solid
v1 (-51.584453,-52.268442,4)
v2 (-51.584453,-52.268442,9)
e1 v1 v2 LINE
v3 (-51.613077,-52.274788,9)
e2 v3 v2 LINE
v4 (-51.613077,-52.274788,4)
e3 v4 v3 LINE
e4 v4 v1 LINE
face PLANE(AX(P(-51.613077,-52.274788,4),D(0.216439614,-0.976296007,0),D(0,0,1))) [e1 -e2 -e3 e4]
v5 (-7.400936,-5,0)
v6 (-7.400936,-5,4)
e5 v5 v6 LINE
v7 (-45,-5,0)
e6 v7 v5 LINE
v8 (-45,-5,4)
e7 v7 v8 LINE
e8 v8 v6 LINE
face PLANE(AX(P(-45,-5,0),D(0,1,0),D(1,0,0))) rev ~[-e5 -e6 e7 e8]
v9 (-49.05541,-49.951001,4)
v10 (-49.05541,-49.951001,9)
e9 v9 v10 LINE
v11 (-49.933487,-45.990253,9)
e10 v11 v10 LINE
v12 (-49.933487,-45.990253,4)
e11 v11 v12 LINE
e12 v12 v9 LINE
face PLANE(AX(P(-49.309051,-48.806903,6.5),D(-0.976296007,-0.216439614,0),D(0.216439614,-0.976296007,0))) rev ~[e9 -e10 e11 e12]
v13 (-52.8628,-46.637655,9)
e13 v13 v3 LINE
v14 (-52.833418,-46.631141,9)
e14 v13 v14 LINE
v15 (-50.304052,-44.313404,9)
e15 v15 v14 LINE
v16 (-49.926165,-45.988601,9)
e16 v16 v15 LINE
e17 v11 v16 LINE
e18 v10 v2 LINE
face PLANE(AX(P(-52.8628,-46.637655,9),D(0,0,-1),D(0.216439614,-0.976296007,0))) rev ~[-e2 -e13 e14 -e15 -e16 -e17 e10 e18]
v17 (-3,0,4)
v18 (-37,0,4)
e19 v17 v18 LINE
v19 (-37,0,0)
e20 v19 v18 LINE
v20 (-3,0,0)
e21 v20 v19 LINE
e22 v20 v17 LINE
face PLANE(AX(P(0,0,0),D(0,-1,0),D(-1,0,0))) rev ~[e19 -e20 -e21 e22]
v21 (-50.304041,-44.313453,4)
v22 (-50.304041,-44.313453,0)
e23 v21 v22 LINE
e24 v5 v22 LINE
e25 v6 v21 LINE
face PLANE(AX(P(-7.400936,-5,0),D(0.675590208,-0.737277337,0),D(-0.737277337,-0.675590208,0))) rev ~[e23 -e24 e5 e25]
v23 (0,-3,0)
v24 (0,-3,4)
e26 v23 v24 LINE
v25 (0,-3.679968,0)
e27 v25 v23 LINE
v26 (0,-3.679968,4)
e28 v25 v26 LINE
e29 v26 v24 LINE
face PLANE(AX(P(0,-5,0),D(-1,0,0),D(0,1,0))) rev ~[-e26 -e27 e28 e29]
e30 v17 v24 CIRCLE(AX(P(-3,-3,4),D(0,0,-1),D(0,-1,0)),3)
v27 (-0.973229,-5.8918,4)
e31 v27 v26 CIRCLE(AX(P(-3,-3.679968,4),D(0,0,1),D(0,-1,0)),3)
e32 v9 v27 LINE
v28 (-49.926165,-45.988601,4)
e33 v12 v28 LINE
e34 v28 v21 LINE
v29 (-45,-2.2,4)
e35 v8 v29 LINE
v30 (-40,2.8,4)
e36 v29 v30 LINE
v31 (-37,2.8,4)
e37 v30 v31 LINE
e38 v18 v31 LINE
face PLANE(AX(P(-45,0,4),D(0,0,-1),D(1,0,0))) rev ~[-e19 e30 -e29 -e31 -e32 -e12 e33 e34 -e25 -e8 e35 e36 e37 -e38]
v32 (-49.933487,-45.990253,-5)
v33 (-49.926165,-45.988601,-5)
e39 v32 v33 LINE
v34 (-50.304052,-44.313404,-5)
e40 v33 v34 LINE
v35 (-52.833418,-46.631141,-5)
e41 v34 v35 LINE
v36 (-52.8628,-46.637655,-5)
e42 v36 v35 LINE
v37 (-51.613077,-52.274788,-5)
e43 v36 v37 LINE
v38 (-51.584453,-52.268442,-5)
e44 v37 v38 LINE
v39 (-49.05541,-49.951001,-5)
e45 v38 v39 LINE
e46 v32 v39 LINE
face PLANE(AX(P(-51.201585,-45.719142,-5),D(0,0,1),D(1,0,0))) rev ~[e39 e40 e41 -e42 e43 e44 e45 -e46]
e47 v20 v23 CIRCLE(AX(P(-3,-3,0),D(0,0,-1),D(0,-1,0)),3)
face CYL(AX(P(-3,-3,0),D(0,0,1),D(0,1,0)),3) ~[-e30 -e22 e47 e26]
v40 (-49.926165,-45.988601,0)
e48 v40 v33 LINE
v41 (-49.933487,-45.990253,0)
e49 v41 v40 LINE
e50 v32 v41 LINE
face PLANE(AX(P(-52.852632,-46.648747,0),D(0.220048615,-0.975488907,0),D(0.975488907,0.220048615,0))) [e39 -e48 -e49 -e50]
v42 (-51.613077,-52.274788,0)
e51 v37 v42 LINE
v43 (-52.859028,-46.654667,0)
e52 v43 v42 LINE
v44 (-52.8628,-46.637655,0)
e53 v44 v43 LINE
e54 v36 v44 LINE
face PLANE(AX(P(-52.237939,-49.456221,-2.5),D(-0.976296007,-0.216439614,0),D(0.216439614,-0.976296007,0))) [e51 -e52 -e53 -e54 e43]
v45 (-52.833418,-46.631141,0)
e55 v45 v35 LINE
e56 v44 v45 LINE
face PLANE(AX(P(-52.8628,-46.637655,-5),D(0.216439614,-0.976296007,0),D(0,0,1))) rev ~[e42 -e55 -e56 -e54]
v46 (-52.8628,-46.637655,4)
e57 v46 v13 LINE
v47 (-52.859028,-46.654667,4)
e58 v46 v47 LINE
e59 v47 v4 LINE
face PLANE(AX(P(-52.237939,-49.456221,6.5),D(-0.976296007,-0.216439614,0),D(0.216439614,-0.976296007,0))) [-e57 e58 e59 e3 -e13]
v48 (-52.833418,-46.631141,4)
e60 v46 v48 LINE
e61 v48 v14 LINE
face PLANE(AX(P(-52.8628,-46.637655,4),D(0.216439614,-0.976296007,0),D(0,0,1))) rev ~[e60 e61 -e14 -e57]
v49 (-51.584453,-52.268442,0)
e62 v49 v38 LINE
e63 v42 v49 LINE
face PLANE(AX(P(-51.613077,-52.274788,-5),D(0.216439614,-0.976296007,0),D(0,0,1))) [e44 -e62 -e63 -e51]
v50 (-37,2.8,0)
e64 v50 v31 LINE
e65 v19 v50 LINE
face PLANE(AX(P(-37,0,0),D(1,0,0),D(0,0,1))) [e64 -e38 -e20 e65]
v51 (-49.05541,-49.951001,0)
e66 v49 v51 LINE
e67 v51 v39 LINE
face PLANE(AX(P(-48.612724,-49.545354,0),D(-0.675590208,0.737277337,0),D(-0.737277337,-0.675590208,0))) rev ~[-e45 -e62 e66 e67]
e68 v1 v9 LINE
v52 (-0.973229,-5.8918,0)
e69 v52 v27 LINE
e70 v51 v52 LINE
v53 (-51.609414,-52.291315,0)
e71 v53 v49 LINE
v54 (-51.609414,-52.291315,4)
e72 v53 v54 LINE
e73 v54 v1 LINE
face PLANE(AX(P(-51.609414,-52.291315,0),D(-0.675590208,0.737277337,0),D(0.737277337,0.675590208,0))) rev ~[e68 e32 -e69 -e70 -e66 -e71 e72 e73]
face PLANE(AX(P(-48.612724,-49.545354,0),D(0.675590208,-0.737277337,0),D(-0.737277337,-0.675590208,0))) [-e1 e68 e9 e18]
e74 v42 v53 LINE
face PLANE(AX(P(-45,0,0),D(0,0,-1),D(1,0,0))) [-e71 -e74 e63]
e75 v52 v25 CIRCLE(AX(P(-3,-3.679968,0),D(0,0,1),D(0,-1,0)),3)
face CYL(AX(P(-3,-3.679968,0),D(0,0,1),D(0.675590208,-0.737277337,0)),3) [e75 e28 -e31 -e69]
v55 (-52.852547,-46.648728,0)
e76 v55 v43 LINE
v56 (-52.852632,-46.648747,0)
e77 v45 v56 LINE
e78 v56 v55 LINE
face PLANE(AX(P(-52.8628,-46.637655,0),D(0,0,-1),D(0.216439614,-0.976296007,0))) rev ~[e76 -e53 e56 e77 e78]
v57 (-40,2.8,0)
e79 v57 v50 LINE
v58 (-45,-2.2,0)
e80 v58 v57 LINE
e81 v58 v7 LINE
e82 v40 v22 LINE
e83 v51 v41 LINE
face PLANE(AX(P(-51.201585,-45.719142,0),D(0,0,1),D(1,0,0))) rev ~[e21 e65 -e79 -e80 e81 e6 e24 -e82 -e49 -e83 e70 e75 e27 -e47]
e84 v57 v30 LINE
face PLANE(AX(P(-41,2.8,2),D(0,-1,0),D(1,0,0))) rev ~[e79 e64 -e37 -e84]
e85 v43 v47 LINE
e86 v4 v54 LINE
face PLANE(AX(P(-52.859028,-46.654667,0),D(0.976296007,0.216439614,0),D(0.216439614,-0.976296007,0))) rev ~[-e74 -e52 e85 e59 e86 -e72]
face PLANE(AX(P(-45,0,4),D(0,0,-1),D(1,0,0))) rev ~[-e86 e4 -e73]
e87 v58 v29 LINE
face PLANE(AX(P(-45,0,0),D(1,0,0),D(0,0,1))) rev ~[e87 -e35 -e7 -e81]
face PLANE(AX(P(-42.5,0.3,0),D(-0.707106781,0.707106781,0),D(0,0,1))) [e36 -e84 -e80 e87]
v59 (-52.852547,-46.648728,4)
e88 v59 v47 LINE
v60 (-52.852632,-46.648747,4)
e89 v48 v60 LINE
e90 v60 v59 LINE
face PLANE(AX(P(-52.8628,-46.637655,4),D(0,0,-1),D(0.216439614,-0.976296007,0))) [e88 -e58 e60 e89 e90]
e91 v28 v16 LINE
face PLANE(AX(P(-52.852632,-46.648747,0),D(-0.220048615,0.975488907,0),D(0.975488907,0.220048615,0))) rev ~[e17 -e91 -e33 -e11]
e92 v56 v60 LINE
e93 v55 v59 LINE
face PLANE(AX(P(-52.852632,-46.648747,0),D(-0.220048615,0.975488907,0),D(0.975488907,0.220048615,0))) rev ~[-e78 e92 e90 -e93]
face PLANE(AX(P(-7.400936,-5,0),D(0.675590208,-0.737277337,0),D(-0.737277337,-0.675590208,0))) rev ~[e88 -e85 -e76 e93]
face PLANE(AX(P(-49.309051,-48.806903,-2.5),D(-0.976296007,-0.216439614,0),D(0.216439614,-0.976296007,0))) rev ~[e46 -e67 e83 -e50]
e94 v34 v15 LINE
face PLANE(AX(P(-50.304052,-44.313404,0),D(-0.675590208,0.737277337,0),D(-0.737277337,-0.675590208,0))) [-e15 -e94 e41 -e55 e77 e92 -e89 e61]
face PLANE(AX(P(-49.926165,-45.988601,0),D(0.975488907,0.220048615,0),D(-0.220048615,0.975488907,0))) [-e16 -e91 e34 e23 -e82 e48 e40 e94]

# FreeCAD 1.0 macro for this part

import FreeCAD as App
import Part
import Sketcher
from FreeCAD import Vector
Q = App.Units.Quantity


def edges_at(feature, points):
    """Names of the edges that pass closest to the given points."""
    edges = feature.Shape.Edges
    near = lambda p: min(range(len(edges)), key=lambda i: edges[i].distToShape(Part.Vertex(*p))[0])
    return sorted({f"Edge{near(p) + 1}" for p in points})


def add_polygon(sketch, points):
    """Adds a closed chain of lines whose ends are joined by coincident constraints."""
    first, n = sketch.GeometryCount, len(points)
    for a, b in zip(points, points[1:] + points[:1]):
        sketch.addGeometry(Part.LineSegment(App.Vector(*a, 0), App.Vector(*b, 0)), False)
    for i in range(n):
        sketch.addConstraint(Sketcher.Constraint("Coincident", first + i, 2, first + (i + 1) % n, 1))

doc = App.newDocument("Part")
body = doc.addObject("PartDesign::Body", "Body")

sketch1 = doc.addObject("Sketcher::SketchObject", "Sketch")
body.addObject(sketch1)
sketch1.AttachmentSupport = (doc.XY_Plane, [""])
sketch1.MapMode = "FlatFace"
add_polygon(sketch1, [(0, 0), (-45, 0), (-45, -5), (-7.400936, -5), (-52.859028, -46.654667), (-51.609414, -52.291315), (0, -5)])
sketch1.addConstraint([
    Sketcher.Constraint("Horizontal", 0),
    Sketcher.Constraint("Vertical", 1),
    Sketcher.Constraint("Horizontal", 2),
    Sketcher.Constraint("Vertical", 6),
    Sketcher.Constraint("Coincident", 6, 2, -1, 1),
    Sketcher.Constraint("Parallel", 3, 5),
    Sketcher.Constraint("Horizontal", 2, 2, 5, 2),
    Sketcher.Constraint("DistanceX", 0, 2, 0, 1, Q("45 mm")),
    Sketcher.Constraint("DistanceY", 1, 2, 1, 1, Q("5 mm")),
    Sketcher.Constraint("Distance", 5, Q("70 mm")),
    Sketcher.Constraint("Angle", 3, Q("-137.5 deg")),
    Sketcher.Constraint("Angle", 4, Q("-77.5 deg")),
    Sketcher.Constraint("DistanceX", 2, 1, 2, 2, Q("37.599064 mm")),
])
pad1 = doc.addObject("PartDesign::Pad", "Pad")
body.addObject(pad1)
pad1.Profile = sketch1
pad1.Length = 4
doc.recompute()

fillet = doc.addObject("PartDesign::Fillet", "Fillet")
body.addObject(fillet)
fillet.Base = (pad1, edges_at(pad1, [(0, 0, 2), (0, -5, 2)]))
fillet.Radius = 3

sketch2 = doc.addObject("Sketcher::SketchObject", "Sketch001")
body.addObject(sketch2)
sketch2.AttachmentSupport = (doc.XZ_Plane, [""])
sketch2.MapMode = "FlatFace"
add_polygon(sketch2, [(-45, 4), (-45, 0), (-37, 0), (-37, 4)])
sketch2.addConstraint([
    Sketcher.Constraint("Vertical", 0),
    Sketcher.Constraint("Horizontal", 1),
    Sketcher.Constraint("Vertical", 2),
    Sketcher.Constraint("Horizontal", 3),
    Sketcher.Constraint("PointOnObject", 0, 2, -1),
    Sketcher.Constraint("DistanceX", 1, 1, 1, 2, Q("8 mm")),
    Sketcher.Constraint("DistanceY", 0, 2, 0, 1, Q("4 mm")),
    Sketcher.Constraint("DistanceX", 0, 2, -1, 1, Q("45 mm")),
])
pad2 = doc.addObject("PartDesign::Pad", "Pad001")
body.addObject(pad2)
pad2.Profile = sketch2
pad2.Length = 2.8
pad2.Reversed = True
doc.recompute()

chamfer = doc.addObject("PartDesign::Chamfer", "Chamfer")
body.addObject(chamfer)
chamfer.Base = (pad2, edges_at(pad2, [(-45, 2.8, 2)]))
chamfer.Size = 5

sketch3 = doc.addObject("Sketcher::SketchObject", "Sketch002")
body.addObject(sketch3)
sketch3.Placement = App.Placement(Vector(-60.241346, -13.355185, 0), App.Rotation(Vector(0.216439614, -0.976296007, 0), Vector(0, 0, 1), Vector(-0.976296007, -0.216439614, 0), "ZXY"))
add_polygon(sketch3, [(34.090552, 9), (34.090552, 4), (39.864552, 4), (39.864552, 9)])
add_polygon(sketch3, [(34.090552, 0), (34.090552, -5), (39.864552, -5), (39.864552, 0)])
sketch3.addConstraint([
    Sketcher.Constraint("Vertical", 0),
    Sketcher.Constraint("Horizontal", 1),
    Sketcher.Constraint("Vertical", 2),
    Sketcher.Constraint("Horizontal", 3),
    Sketcher.Constraint("Vertical", 4),
    Sketcher.Constraint("Horizontal", 5),
    Sketcher.Constraint("Vertical", 6),
    Sketcher.Constraint("Horizontal", 7),
    Sketcher.Constraint("PointOnObject", 6, 2, -1),
    Sketcher.Constraint("Vertical", 3, 2, 4, 2),
    Sketcher.Constraint("Vertical", 2, 2, 5, 2),
    Sketcher.Constraint("Equal", 2, 4),
    Sketcher.Constraint("DistanceY", 0, 2, 0, 1, Q("5 mm")),
    Sketcher.Constraint("DistanceY", -1, 1, 0, 2, Q("4 mm")),
    Sketcher.Constraint("DistanceX", 1, 1, 1, 2, Q("5.774 mm")),
    Sketcher.Constraint("DistanceX", -1, 1, 0, 2, Q("34.090552 mm")),
])
pad3 = doc.addObject("PartDesign::Pad", "Pad002")
body.addObject(pad3)
pad3.Profile = sketch3
pad3.Length = 3
pad3.Reversed = True

sketch4 = doc.addObject("Sketcher::SketchObject", "Sketch003")
body.addObject(sketch4)
sketch4.AttachmentSupport = (doc.XY_Plane, [""])
sketch4.MapMode = "FlatFace"
add_polygon(sketch4, [(-48.077758, -51.715363), (-48.612724, -49.545354), (-51.609414, -52.291315)])
sketch4.addConstraint([
    Sketcher.Constraint("Angle", 1, Q("-137.5 deg")),
    Sketcher.Constraint("Distance", 2, Q("3.578311 mm")),
    Sketcher.Constraint("DistanceX", 2, 2, -1, 1, Q("48.077758 mm")),
    Sketcher.Constraint("DistanceX", 1, 2, 0, 2, Q("2.99669 mm")),
    Sketcher.Constraint("DistanceY", 2, 2, 0, 2, Q("2.170009 mm")),
    Sketcher.Constraint("DistanceY", 0, 2, -1, 1, Q("49.545354 mm")),
])
pocket1 = doc.addObject("PartDesign::Pocket", "Pocket")
body.addObject(pocket1)
pocket1.Profile = sketch4
pocket1.Type = "ThroughAll"
pocket1.Midplane = True

sketch5 = doc.addObject("Sketcher::SketchObject", "Sketch004")
body.addObject(sketch5)
sketch5.AttachmentSupport = (doc.XY_Plane, [""])
sketch5.MapMode = "FlatFace"
add_polygon(sketch5, [(-49.926165, -45.988601), (-50.304052, -44.313404), (-52.852632, -46.648747)])
sketch5.addConstraint([
    Sketcher.Constraint("Perpendicular", 0, 2),
    Sketcher.Constraint("Distance", 2, Q("3 mm")),
    Sketcher.Constraint("Angle", 1, Q("-137.5 deg")),
    Sketcher.Constraint("DistanceY", 2, 2, -1, 1, Q("45.988601 mm")),
    Sketcher.Constraint("Distance", 0, Q("1.71729 mm")),
    Sketcher.Constraint("DistanceX", 1, 2, -1, 1, Q("52.852632 mm")),
])
pad4 = doc.addObject("PartDesign::Pad", "Pad003")
body.addObject(pad4)
pad4.Profile = sketch5
pad4.Type = "TwoLengths"
pad4.Length = 9
pad4.Length2 = 5

doc.recompute()
